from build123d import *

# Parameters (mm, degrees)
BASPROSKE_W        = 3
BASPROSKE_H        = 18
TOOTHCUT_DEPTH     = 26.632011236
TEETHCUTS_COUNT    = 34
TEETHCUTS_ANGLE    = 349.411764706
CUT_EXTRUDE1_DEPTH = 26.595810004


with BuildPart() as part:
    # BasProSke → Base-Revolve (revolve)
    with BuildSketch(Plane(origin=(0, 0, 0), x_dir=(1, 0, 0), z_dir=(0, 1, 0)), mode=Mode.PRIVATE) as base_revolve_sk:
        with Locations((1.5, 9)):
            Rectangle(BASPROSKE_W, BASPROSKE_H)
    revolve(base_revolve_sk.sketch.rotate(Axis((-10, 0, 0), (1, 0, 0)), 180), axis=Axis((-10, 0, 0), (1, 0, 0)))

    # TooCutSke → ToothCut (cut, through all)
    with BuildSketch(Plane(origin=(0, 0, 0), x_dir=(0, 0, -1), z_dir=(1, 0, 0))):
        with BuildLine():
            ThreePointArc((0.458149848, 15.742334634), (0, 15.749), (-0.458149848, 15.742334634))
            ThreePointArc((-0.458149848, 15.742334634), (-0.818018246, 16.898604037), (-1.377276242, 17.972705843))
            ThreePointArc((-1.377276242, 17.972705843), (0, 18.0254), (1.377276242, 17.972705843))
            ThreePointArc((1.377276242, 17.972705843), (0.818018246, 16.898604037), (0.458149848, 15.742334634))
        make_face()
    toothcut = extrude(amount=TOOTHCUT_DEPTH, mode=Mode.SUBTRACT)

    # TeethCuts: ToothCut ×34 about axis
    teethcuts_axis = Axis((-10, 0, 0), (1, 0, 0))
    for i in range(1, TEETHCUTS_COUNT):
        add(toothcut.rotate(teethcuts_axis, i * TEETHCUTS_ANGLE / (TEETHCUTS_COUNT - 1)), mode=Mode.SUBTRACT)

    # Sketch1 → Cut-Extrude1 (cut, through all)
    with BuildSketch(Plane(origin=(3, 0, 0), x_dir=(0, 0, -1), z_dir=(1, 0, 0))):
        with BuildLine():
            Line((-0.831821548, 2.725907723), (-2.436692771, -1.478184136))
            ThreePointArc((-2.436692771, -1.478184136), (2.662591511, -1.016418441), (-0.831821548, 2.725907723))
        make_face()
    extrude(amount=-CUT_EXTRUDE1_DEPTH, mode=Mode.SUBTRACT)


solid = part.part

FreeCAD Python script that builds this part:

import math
import FreeCAD as App
import Part
import Sketcher
Q = App.Units.Quantity


def add_polygon(sketch, points):
    """Adds a closed chain of lines whose ends are joined by coincident constraints."""
    first, n = sketch.GeometryCount, len(points)
    for a, b in zip(points, points[1:] + points[:1]):
        sketch.addGeometry(Part.LineSegment(App.Vector(*a, 0), App.Vector(*b, 0)), False)
    for i in range(n):
        sketch.addConstraint(Sketcher.Constraint("Coincident", first + i, 2, first + (i + 1) % n, 1))

doc = App.newDocument("Part")
body = doc.addObject("PartDesign::Body", "Body")

sketch1 = doc.addObject("Sketcher::SketchObject", "Sketch")
body.addObject(sketch1)
sketch1.AttachmentSupport = (doc.XZ_Plane, [""])
sketch1.MapMode = "FlatFace"
add_polygon(sketch1, [(0, -18), (0, 0), (3, 0), (3, -18)])
sketch1.addConstraint([
    Sketcher.Constraint("Vertical", 0),
    Sketcher.Constraint("Horizontal", 1),
    Sketcher.Constraint("Vertical", 2),
    Sketcher.Constraint("Horizontal", 3),
    Sketcher.Constraint("Coincident", 0, 2, -1, 1),
    Sketcher.Constraint("DistanceX", 1, 1, 1, 2, Q("3 mm")),
    Sketcher.Constraint("DistanceY", 0, 1, 0, 2, Q("18 mm")),
])
revolution = doc.addObject("PartDesign::Revolution", "Revolution")
body.addObject(revolution)
revolution.Profile = sketch1
revolution.ReferenceAxis = (sketch1, ["H_Axis"])
revolution.Angle = 360

sketch2 = doc.addObject("Sketcher::SketchObject", "Sketch001")
body.addObject(sketch2)
sketch2.AttachmentSupport = (doc.YZ_Plane, [""])
sketch2.MapMode = "FlatFace"
sketch2.addGeometry([
    Part.ArcOfCircle(Part.Circle(App.Vector(-0.000001, 0, 0), App.Vector(0, 0, 1), 15.749001), math.radians(-1.667011), math.radians(1.667011)),
    Part.ArcOfCircle(Part.Circle(App.Vector(14.307726, -7.105096, 0), App.Vector(0, 0, 1), 6.8), math.radians(57.386613), math.radians(77.82069)),
    Part.ArcOfCircle(Part.Circle(App.Vector(0, 0, 0), App.Vector(0, 0, 1), 18.0254), math.radians(-4.3821), math.radians(4.3821)),
    Part.ArcOfCircle(Part.Circle(App.Vector(14.307726, 7.105096, 0), App.Vector(0, 0, 1), 6.8), math.radians(-77.82069), math.radians(-57.386613)),
], False)
sketch2.addConstraint([
    Sketcher.Constraint("Coincident", 0, 1, 1, 2),
    Sketcher.Constraint("Coincident", 1, 1, 2, 1),
    Sketcher.Constraint("Coincident", 2, 2, 3, 2),
    Sketcher.Constraint("Coincident", 3, 1, 0, 2),
    Sketcher.Constraint("Coincident", 0, 3, -1, 1),
    Sketcher.Constraint("Coincident", 2, 3, -1, 1),
    Sketcher.Constraint("Equal", 1, 3),
    Sketcher.Constraint("Symmetric", 1, 3, 3, 3, -1),
    Sketcher.Constraint("Radius", 1, Q("6.8 mm")),
    Sketcher.Constraint("Radius", 0, Q("15.749001 mm")),
    Sketcher.Constraint("Radius", 2, Q("18.0254 mm")),
    Sketcher.Constraint("DistanceY", 0, 1, 3, 1, Q("0.9163 mm")),
    Sketcher.Constraint("DistanceX", 1, 3, 0, 1, Q("1.434608 mm")),
])
pocket1 = doc.addObject("PartDesign::Pocket", "Pocket")
body.addObject(pocket1)
pocket1.Profile = sketch2
pocket1.Type = "ThroughAll"
pocket1.Reversed = True
doc.recompute()

polarpattern = doc.addObject("PartDesign::PolarPattern", "PolarPattern")
body.addObject(polarpattern)
polarpattern.Originals = [pocket1]
polarpattern.Axis = (doc.X_Axis, [""])
polarpattern.Angle = 360
polarpattern.Occurrences = 34
body.Tip = polarpattern

sketch3 = doc.addObject("Sketcher::SketchObject", "Sketch002")
body.addObject(sketch3)
sketch3.AttachmentSupport = (doc.YZ_Plane, [""])
sketch3.MapMode = "FlatFace"
sketch3.AttachmentOffset = App.Placement(App.Vector(0, 0, 3), App.Rotation())
sketch3.addGeometry([
    Part.LineSegment(App.Vector(2.725908, 0.831822, 0), App.Vector(-1.478184, 2.436693, 0)),
    Part.ArcOfCircle(Part.Circle(App.Vector(0, 0, 0), App.Vector(0, 0, 1), 2.85), math.radians(121.242484), math.radians(376.969776)),
], False)
sketch3.addConstraint([
    Sketcher.Constraint("Coincident", 0, 1, 1, 2),
    Sketcher.Constraint("Coincident", 1, 1, 0, 2),
    Sketcher.Constraint("Coincident", 1, 3, -1, 1),
    Sketcher.Constraint("Radius", 1, Q("2.85 mm")),
    Sketcher.Constraint("Distance", 0, Q("4.5 mm")),
    Sketcher.Constraint("DistanceY", -1, 1, 0, 1, Q("0.831822 mm")),
])
pocket2 = doc.addObject("PartDesign::Pocket", "Pocket001")
body.addObject(pocket2)
pocket2.Profile = sketch3
pocket2.Type = "ThroughAll"

doc.recompute()
